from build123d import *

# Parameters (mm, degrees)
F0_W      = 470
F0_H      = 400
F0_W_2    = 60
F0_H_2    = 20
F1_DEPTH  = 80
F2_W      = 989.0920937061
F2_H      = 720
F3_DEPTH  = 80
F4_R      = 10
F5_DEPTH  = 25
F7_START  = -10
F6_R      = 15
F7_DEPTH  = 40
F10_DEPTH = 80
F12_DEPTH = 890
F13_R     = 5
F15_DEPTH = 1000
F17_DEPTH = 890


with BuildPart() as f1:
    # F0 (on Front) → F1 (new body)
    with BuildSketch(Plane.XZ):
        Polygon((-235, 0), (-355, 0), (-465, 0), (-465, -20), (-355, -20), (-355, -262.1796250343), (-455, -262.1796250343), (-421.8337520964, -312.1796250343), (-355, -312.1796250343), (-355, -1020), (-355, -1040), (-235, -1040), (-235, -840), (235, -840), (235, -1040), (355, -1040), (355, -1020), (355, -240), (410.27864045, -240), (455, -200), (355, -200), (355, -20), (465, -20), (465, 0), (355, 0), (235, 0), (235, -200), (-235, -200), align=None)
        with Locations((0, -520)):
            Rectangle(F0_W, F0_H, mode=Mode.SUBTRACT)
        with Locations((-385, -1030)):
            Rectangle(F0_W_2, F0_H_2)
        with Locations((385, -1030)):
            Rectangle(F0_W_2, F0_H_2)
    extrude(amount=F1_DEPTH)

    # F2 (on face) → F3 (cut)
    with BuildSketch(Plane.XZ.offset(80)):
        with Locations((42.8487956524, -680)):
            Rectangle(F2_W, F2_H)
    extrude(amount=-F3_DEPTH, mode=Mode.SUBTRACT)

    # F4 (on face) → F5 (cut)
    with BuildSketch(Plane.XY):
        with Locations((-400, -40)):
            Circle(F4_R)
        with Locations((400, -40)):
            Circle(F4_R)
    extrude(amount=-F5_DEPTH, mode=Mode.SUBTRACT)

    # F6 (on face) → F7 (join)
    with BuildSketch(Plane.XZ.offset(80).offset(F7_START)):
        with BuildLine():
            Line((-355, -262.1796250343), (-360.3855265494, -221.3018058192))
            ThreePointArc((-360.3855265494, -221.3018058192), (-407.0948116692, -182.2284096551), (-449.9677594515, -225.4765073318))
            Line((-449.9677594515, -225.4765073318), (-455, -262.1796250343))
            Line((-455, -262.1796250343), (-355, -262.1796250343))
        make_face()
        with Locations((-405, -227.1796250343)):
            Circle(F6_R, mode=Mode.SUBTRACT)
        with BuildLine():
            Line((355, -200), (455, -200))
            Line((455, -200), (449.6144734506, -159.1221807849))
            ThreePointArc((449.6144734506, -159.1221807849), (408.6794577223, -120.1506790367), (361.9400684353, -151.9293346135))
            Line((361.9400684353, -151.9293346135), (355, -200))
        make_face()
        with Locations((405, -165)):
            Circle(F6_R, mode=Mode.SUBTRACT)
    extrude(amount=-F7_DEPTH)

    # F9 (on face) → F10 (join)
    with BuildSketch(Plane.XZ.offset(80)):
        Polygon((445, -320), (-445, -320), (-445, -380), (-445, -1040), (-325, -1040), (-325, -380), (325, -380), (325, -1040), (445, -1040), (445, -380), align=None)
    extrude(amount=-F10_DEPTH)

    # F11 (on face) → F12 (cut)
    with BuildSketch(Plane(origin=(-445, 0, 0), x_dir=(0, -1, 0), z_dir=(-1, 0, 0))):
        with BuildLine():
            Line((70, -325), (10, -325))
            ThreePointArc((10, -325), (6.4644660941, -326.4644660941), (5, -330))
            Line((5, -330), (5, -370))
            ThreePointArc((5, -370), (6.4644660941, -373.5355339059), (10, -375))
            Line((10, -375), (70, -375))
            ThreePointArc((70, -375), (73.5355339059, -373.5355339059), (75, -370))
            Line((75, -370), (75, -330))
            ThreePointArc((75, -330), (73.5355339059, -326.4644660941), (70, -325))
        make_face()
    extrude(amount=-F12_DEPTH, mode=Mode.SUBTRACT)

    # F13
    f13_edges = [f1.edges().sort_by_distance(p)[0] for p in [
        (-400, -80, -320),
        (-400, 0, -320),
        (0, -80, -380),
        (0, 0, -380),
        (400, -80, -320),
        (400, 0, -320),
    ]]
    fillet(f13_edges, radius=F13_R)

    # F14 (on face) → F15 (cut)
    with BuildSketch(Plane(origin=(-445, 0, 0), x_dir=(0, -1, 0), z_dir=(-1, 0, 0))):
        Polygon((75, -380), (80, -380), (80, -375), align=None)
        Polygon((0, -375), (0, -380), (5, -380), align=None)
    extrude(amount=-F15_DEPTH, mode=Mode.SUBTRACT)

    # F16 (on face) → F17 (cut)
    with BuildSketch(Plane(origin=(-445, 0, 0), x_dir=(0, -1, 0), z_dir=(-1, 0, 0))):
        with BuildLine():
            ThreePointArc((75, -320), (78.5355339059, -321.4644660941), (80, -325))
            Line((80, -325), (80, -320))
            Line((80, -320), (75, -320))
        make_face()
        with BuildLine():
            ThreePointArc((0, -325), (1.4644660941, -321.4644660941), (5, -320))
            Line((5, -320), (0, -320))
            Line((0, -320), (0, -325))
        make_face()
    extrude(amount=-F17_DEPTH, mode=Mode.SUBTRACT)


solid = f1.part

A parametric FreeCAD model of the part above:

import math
import FreeCAD as App
import Part
import Sketcher
Q = App.Units.Quantity


def edges_at(feature, points):
    """Names of the edges that pass closest to the given points."""
    edges = feature.Shape.Edges
    near = lambda p: min(range(len(edges)), key=lambda i: edges[i].distToShape(Part.Vertex(*p))[0])
    return sorted({f"Edge{near(p) + 1}" for p in points})

doc = App.newDocument("Part")
body = doc.addObject("PartDesign::Body", "Body")

sketch1 = body.newObject("Sketcher::SketchObject", "Sketch")
sketch1.AttachmentSupport = (doc.getObject("XZ_Plane"), [""])
sketch1.MapMode = "FlatFace"
sketch1.addGeometry([
    Part.LineSegment(App.Vector(-235, 0, 0), App.Vector(-465, 0, 0)),
    Part.LineSegment(App.Vector(-465, 0, 0), App.Vector(-465, -20, 0)),
    Part.LineSegment(App.Vector(-465, -20, 0), App.Vector(-355, -20, 0)),
    Part.LineSegment(App.Vector(-355, -20, 0), App.Vector(-355, -262.179625, 0)),
    Part.LineSegment(App.Vector(-355, -262.179625, 0), App.Vector(-455, -262.179625, 0)),
    Part.LineSegment(App.Vector(-455, -262.179625, 0), App.Vector(-421.833752, -312.179625, 0)),
    Part.LineSegment(App.Vector(-421.833752, -312.179625, 0), App.Vector(-355, -312.179625, 0)),
    Part.LineSegment(App.Vector(-355, -312.179625, 0), App.Vector(-355, -1020, 0)),
    Part.LineSegment(App.Vector(-355, -1020, 0), App.Vector(-415, -1020, 0)),
    Part.LineSegment(App.Vector(-415, -1020, 0), App.Vector(-415, -1040, 0)),
    Part.LineSegment(App.Vector(-415, -1040, 0), App.Vector(-235, -1040, 0)),
    Part.LineSegment(App.Vector(-235, -1040, 0), App.Vector(-235, -840, 0)),
    Part.LineSegment(App.Vector(-235, -840, 0), App.Vector(235, -840, 0)),
    Part.LineSegment(App.Vector(235, -840, 0), App.Vector(235, -1040, 0)),
    Part.LineSegment(App.Vector(235, -1040, 0), App.Vector(415, -1040, 0)),
    Part.LineSegment(App.Vector(415, -1040, 0), App.Vector(415, -1020, 0)),
    Part.LineSegment(App.Vector(415, -1020, 0), App.Vector(355, -1020, 0)),
    Part.LineSegment(App.Vector(355, -1020, 0), App.Vector(355, -240, 0)),
    Part.LineSegment(App.Vector(355, -240, 0), App.Vector(410.27864, -240, 0)),
    Part.LineSegment(App.Vector(410.27864, -240, 0), App.Vector(455, -200, 0)),
    Part.LineSegment(App.Vector(455, -200, 0), App.Vector(355, -200, 0)),
    Part.LineSegment(App.Vector(355, -200, 0), App.Vector(355, -20, 0)),
    Part.LineSegment(App.Vector(355, -20, 0), App.Vector(465, -20, 0)),
    Part.LineSegment(App.Vector(465, -20, 0), App.Vector(465, 0, 0)),
    Part.LineSegment(App.Vector(465, 0, 0), App.Vector(235, 0, 0)),
    Part.LineSegment(App.Vector(235, 0, 0), App.Vector(235, -200, 0)),
    Part.LineSegment(App.Vector(235, -200, 0), App.Vector(-235, -200, 0)),
    Part.LineSegment(App.Vector(-235, -200, 0), App.Vector(-235, 0, 0)),
    Part.LineSegment(App.Vector(235, -720, 0), App.Vector(-235, -720, 0)),
    Part.LineSegment(App.Vector(-235, -720, 0), App.Vector(-235, -320, 0)),
    Part.LineSegment(App.Vector(-235, -320, 0), App.Vector(235, -320, 0)),
    Part.LineSegment(App.Vector(235, -320, 0), App.Vector(235, -720, 0)),
], False)
sketch1.addConstraint([
    Sketcher.Constraint("Coincident", 0, 2, 1, 1),
    Sketcher.Constraint("Coincident", 1, 2, 2, 1),
    Sketcher.Constraint("Coincident", 2, 2, 3, 1),
    Sketcher.Constraint("Coincident", 3, 2, 4, 1),
    Sketcher.Constraint("Coincident", 4, 2, 5, 1),
    Sketcher.Constraint("Coincident", 5, 2, 6, 1),
    Sketcher.Constraint("Coincident", 6, 2, 7, 1),
    Sketcher.Constraint("Coincident", 7, 2, 8, 1),
    Sketcher.Constraint("Coincident", 8, 2, 9, 1),
    Sketcher.Constraint("Coincident", 9, 2, 10, 1),
    Sketcher.Constraint("Coincident", 10, 2, 11, 1),
    Sketcher.Constraint("Coincident", 11, 2, 12, 1),
    Sketcher.Constraint("Coincident", 12, 2, 13, 1),
    Sketcher.Constraint("Coincident", 13, 2, 14, 1),
    Sketcher.Constraint("Coincident", 14, 2, 15, 1),
    Sketcher.Constraint("Coincident", 15, 2, 16, 1),
    Sketcher.Constraint("Coincident", 16, 2, 17, 1),
    Sketcher.Constraint("Coincident", 17, 2, 18, 1),
    Sketcher.Constraint("Coincident", 18, 2, 19, 1),
    Sketcher.Constraint("Coincident", 19, 2, 20, 1),
    Sketcher.Constraint("Coincident", 20, 2, 21, 1),
    Sketcher.Constraint("Coincident", 21, 2, 22, 1),
    Sketcher.Constraint("Coincident", 22, 2, 23, 1),
    Sketcher.Constraint("Coincident", 23, 2, 24, 1),
    Sketcher.Constraint("Coincident", 24, 2, 25, 1),
    Sketcher.Constraint("Coincident", 25, 2, 26, 1),
    Sketcher.Constraint("Coincident", 26, 2, 27, 1),
    Sketcher.Constraint("Coincident", 27, 2, 0, 1),
    Sketcher.Constraint("Coincident", 28, 2, 29, 1),
    Sketcher.Constraint("Coincident", 29, 2, 30, 1),
    Sketcher.Constraint("Coincident", 30, 2, 31, 1),
    Sketcher.Constraint("Coincident", 31, 2, 28, 1),
    Sketcher.Constraint("Horizontal", 0),
    Sketcher.Constraint("Vertical", 1),
    Sketcher.Constraint("Horizontal", 2),
    Sketcher.Constraint("Vertical", 3),
    Sketcher.Constraint("Horizontal", 4),
    Sketcher.Constraint("Horizontal", 6),
    Sketcher.Constraint("Vertical", 7),
    Sketcher.Constraint("Horizontal", 8),
    Sketcher.Constraint("Vertical", 9),
    Sketcher.Constraint("Horizontal", 10),
    Sketcher.Constraint("Vertical", 11),
    Sketcher.Constraint("Horizontal", 12),
    Sketcher.Constraint("Vertical", 13),
    Sketcher.Constraint("Horizontal", 14),
    Sketcher.Constraint("Vertical", 15),
    Sketcher.Constraint("Horizontal", 16),
    Sketcher.Constraint("Vertical", 17),
    Sketcher.Constraint("Horizontal", 18),
    Sketcher.Constraint("Horizontal", 20),
    Sketcher.Constraint("Vertical", 21),
    Sketcher.Constraint("Horizontal", 22),
    Sketcher.Constraint("Vertical", 23),
    Sketcher.Constraint("Horizontal", 24),
    Sketcher.Constraint("Vertical", 25),
    Sketcher.Constraint("Horizontal", 26),
    Sketcher.Constraint("Vertical", 27),
    Sketcher.Constraint("Horizontal", 28),
    Sketcher.Constraint("Vertical", 29),
    Sketcher.Constraint("Horizontal", 30),
    Sketcher.Constraint("Vertical", 31),
    Sketcher.Constraint("Symmetric", 0, 2, 23, 2, -1, 1),
    Sketcher.Constraint("Symmetric", 10, 2, 13, 2, -2),
    Sketcher.Constraint("Symmetric", 8, 2, 15, 2, -2),
    Sketcher.Constraint("Symmetric", 2, 2, 21, 2, -2),
    Sketcher.Constraint("Symmetric", 24, 2, 27, 2, -2),
    Sketcher.Constraint("Horizontal", 20, 2, 25, 2),
    Sketcher.Constraint("Vertical", 3, 2, 6, 2),
    Sketcher.Constraint("Vertical", 17, 2, 20, 2),
    Sketcher.Constraint("Vertical", 13, 2, 24, 2),
    Sketcher.Constraint("Vertical", 27, 2, 28, 2),
    Sketcher.Constraint("Vertical", 25, 2, 30, 2),
    Sketcher.Constraint("Equal", 4, 20),
    Sketcher.Constraint("Equal", 1, 9),
    Sketcher.Constraint("Equal", 14, 21),
    Sketcher.Constraint("Equal", 13, 25),
    Sketcher.Constraint("Equal", 5, 19),
    Sketcher.Constraint("DistanceX", 0, 2, 0, 1, Q("230 mm")),
    Sketcher.Constraint("DistanceX", 2, 1, 2, 2, Q("110 mm")),
    Sketcher.Constraint("DistanceX", 4, 2, 4, 1, Q("100 mm")),
    Sketcher.Constraint("DistanceX", 8, 2, 8, 1, Q("60 mm")),
    Sketcher.Constraint("DistanceX", 12, 1, 12, 2, Q("470 mm")),
    Sketcher.Constraint("DistanceY", 1, 2, 1, 1, Q("20 mm")),
    Sketcher.Constraint("DistanceY", 17, 1, 17, 2, Q("780 mm")),
    Sketcher.Constraint("DistanceY", 29, 1, 29, 2, Q("400 mm")),
    Sketcher.Constraint("Distance", 5, Q("60 mm")),
    Sketcher.Constraint("DistanceY", 7, 2, -1, 1, Q("1020 mm")),
    Sketcher.Constraint("DistanceY", 28, 2, -1, 1, Q("720 mm")),
    Sketcher.Constraint("DistanceY", 5, 2, 4, 2, Q("50 mm")),
    Sketcher.Constraint("DistanceY", 3, 2, 3, 1, Q("242.179625 mm")),
])
pad1 = body.newObject("PartDesign::Pad", "Pad")
pad1.Profile = sketch1
pad1.Length = 80

sketch2 = body.newObject("Sketcher::SketchObject", "Sketch001")
sketch2.AttachmentSupport = (doc.getObject("XZ_Plane"), [""])
sketch2.MapMode = "FlatFace"
sketch2.AttachmentOffset = App.Placement(App.Vector(0, 0, 80), App.Rotation())
sketch2.addGeometry([
    Part.LineSegment(App.Vector(-451.697251, -320, 0), App.Vector(-451.697251, -1040, 0)),
    Part.LineSegment(App.Vector(-451.697251, -1040, 0), App.Vector(537.394843, -1040, 0)),
    Part.LineSegment(App.Vector(537.394843, -1040, 0), App.Vector(537.394843, -320, 0)),
    Part.LineSegment(App.Vector(537.394843, -320, 0), App.Vector(-451.697251, -320, 0)),
], False)
sketch2.addConstraint([
    Sketcher.Constraint("Coincident", 0, 2, 1, 1),
    Sketcher.Constraint("Coincident", 1, 2, 2, 1),
    Sketcher.Constraint("Coincident", 2, 2, 3, 1),
    Sketcher.Constraint("Coincident", 3, 2, 0, 1),
    Sketcher.Constraint("Vertical", 0),
    Sketcher.Constraint("Horizontal", 1),
    Sketcher.Constraint("Vertical", 2),
    Sketcher.Constraint("Horizontal", 3),
    Sketcher.Constraint("DistanceY", 0, 2, 0, 1, Q("720 mm")),
    Sketcher.Constraint("DistanceY", 0, 2, -1, 1, Q("1040 mm")),
    Sketcher.Constraint("DistanceX", 1, 1, 1, 2, Q("989.092094 mm")),
    Sketcher.Constraint("DistanceX", 0, 2, -1, 1, Q("451.697251 mm")),
])
pocket1 = body.newObject("PartDesign::Pocket", "Pocket")
pocket1.Profile = sketch2
pocket1.Length = 80

sketch3 = body.newObject("Sketcher::SketchObject", "Sketch002")
sketch3.AttachmentSupport = (doc.getObject("XY_Plane"), [""])
sketch3.MapMode = "FlatFace"
sketch3.addGeometry([
    Part.Circle(App.Vector(-400, -40, 0), App.Vector(0, 0, 1), 10),
    Part.Circle(App.Vector(400, -40, 0), App.Vector(0, 0, 1), 10),
], False)
sketch3.addConstraint([
    Sketcher.Constraint("Equal", 0, 1),
    Sketcher.Constraint("Symmetric", 0, 3, 1, 3, -2),
    Sketcher.Constraint("Diameter", 0, Q("20 mm")),
    Sketcher.Constraint("DistanceX", 0, 3, -1, 1, Q("400 mm")),
    Sketcher.Constraint("DistanceY", 0, 3, -1, 1, Q("40 mm")),
])
pocket2 = body.newObject("PartDesign::Pocket", "Pocket001")
pocket2.Profile = sketch3
pocket2.Length = 25

sketch4 = body.newObject("Sketcher::SketchObject", "Sketch003")
sketch4.AttachmentSupport = (doc.getObject("XZ_Plane"), [""])
sketch4.MapMode = "FlatFace"
sketch4.AttachmentOffset = App.Placement(App.Vector(0, 0, 70), App.Rotation())
sketch4.addGeometry([
    Part.LineSegment(App.Vector(-355, -262.179625, 0), App.Vector(-360.385527, -221.301806, 0)),
    Part.ArcOfCircle(Part.Circle(App.Vector(-405, -227.179625, 0), App.Vector(0, 0, 1), 45), math.radians(7.505317), math.radians(177.831005)),
    Part.LineSegment(App.Vector(-449.967759, -225.476507, 0), App.Vector(-455, -262.179625, 0)),
    Part.LineSegment(App.Vector(-455, -262.179625, 0), App.Vector(-355, -262.179625, 0)),
    Part.Circle(App.Vector(-405, -227.179625, 0), App.Vector(0, 0, 1), 15),
    Part.LineSegment(App.Vector(355, -200, 0), App.Vector(455, -200, 0)),
    Part.LineSegment(App.Vector(455, -200, 0), App.Vector(449.614473, -159.122181, 0)),
    Part.ArcOfCircle(Part.Circle(App.Vector(405, -165, 0), App.Vector(0, 0, 1), 45), math.radians(7.505317), math.radians(163.114549)),
    Part.LineSegment(App.Vector(361.940068, -151.929335, 0), App.Vector(355, -200, 0)),
    Part.Circle(App.Vector(405, -165, 0), App.Vector(0, 0, 1), 15),
], False)
sketch4.addConstraint([
    Sketcher.Constraint("Tangent", 0, 2, 1, 1),
    Sketcher.Constraint("Coincident", 1, 2, 2, 1),
    Sketcher.Constraint("Coincident", 2, 2, 3, 1),
    Sketcher.Constraint("Coincident", 3, 2, 0, 1),
    Sketcher.Constraint("Coincident", 5, 2, 6, 1),
    Sketcher.Constraint("Tangent", 6, 2, 7, 1),
    Sketcher.Constraint("Coincident", 7, 2, 8, 1),
    Sketcher.Constraint("Coincident", 8, 2, 5, 1),
    Sketcher.Constraint("Horizontal", 3),
    Sketcher.Constraint("Horizontal", 5),
    Sketcher.Constraint("Coincident", 4, 3, 1, 3),
    Sketcher.Constraint("Coincident", 9, 3, 7, 3),
    Sketcher.Constraint("Equal", 1, 7),
    Sketcher.Constraint("Equal", 4, 9),
    Sketcher.Constraint("Parallel", 0, 6),
    Sketcher.Constraint("Equal", 3, 5),
    Sketcher.Constraint("Equal", 0, 6),
    Sketcher.Constraint("Diameter", 4, Q("30 mm")),
    Sketcher.Constraint("Radius", 1, Q("45 mm")),
    Sketcher.Constraint("DistanceX", 3, 1, 3, 2, Q("100 mm")),
    Sketcher.Constraint("DistanceX", 1, 3, -1, 1, Q("405 mm")),
    Sketcher.Constraint("DistanceX", -1, 1, 7, 3, Q("405 mm")),
    Sketcher.Constraint("DistanceY", 7, 3, -1, 1, Q("165 mm")),
    Sketcher.Constraint("DistanceX", 2, 2, -1, 1, Q("455 mm")),
    Sketcher.Constraint("DistanceY", 5, 2, -1, 1, Q("200 mm")),
    Sketcher.Constraint("DistanceY", 1, 2, 0, 2, Q("4.174702 mm")),
    Sketcher.Constraint("Distance", 8, Q("48.569058 mm")),
    Sketcher.Constraint("DistanceY", 3, 2, 7, 2, Q("110.25029 mm")),
])
pad2 = body.newObject("PartDesign::Pad", "Pad001")
pad2.Profile = sketch4
pad2.Length = 40
pad2.Reversed = True

sketch5 = body.newObject("Sketcher::SketchObject", "Sketch004")
sketch5.AttachmentSupport = (doc.getObject("XZ_Plane"), [""])
sketch5.MapMode = "FlatFace"
sketch5.AttachmentOffset = App.Placement(App.Vector(0, 0, 80), App.Rotation())
sketch5.addGeometry([
    Part.LineSegment(App.Vector(445, -320, 0), App.Vector(-445, -320, 0)),
    Part.LineSegment(App.Vector(-445, -320, 0), App.Vector(-445, -1040, 0)),
    Part.LineSegment(App.Vector(-445, -1040, 0), App.Vector(-325, -1040, 0)),
    Part.LineSegment(App.Vector(-325, -1040, 0), App.Vector(-325, -380, 0)),
    Part.LineSegment(App.Vector(-325, -380, 0), App.Vector(325, -380, 0)),
    Part.LineSegment(App.Vector(325, -380, 0), App.Vector(325, -1040, 0)),
    Part.LineSegment(App.Vector(325, -1040, 0), App.Vector(445, -1040, 0)),
    Part.LineSegment(App.Vector(445, -1040, 0), App.Vector(445, -320, 0)),
], False)
sketch5.addConstraint([
    Sketcher.Constraint("Coincident", 0, 2, 1, 1),
    Sketcher.Constraint("Coincident", 1, 2, 2, 1),
    Sketcher.Constraint("Coincident", 2, 2, 3, 1),
    Sketcher.Constraint("Coincident", 3, 2, 4, 1),
    Sketcher.Constraint("Coincident", 4, 2, 5, 1),
    Sketcher.Constraint("Coincident", 5, 2, 6, 1),
    Sketcher.Constraint("Coincident", 6, 2, 7, 1),
    Sketcher.Constraint("Coincident", 7, 2, 0, 1),
    Sketcher.Constraint("Horizontal", 0),
    Sketcher.Constraint("Vertical", 1),
    Sketcher.Constraint("Horizontal", 2),
    Sketcher.Constraint("Vertical", 3),
    Sketcher.Constraint("Horizontal", 4),
    Sketcher.Constraint("Vertical", 5),
    Sketcher.Constraint("Horizontal", 6),
    Sketcher.Constraint("Vertical", 7),
    Sketcher.Constraint("Symmetric", 2, 2, 5, 2, -2),
    Sketcher.Constraint("Equal", 2, 6),
    Sketcher.Constraint("DistanceX", 0, 2, 0, 1, Q("890 mm")),
    Sketcher.Constraint("DistanceX", 2, 1, 2, 2, Q("120 mm")),
    Sketcher.Constraint("DistanceY", 1, 2, 1, 1, Q("720 mm")),
    Sketcher.Constraint("DistanceY", 3, 1, 3, 2, Q("660 mm")),
    Sketcher.Constraint("DistanceY", 0, 2, -1, 1, Q("320 mm")),
])
pad3 = body.newObject("PartDesign::Pad", "Pad002")
pad3.Profile = sketch5
pad3.Length = 80
pad3.Reversed = True

sketch6 = body.newObject("Sketcher::SketchObject", "Sketch005")
sketch6.AttachmentSupport = (doc.getObject("YZ_Plane"), [""])
sketch6.MapMode = "FlatFace"
sketch6.AttachmentOffset = App.Placement(App.Vector(0, 0, -445), App.Rotation())
sketch6.addGeometry([
    Part.LineSegment(App.Vector(-70, -325, 0), App.Vector(-10, -325, 0)),
    Part.ArcOfCircle(Part.Circle(App.Vector(-10, -330, 0), App.Vector(0, 0, 1), 5), math.radians(0), math.radians(90)),
    Part.LineSegment(App.Vector(-5, -330, 0), App.Vector(-5, -370, 0)),
    Part.ArcOfCircle(Part.Circle(App.Vector(-10, -370, 0), App.Vector(0, 0, 1), 5), math.radians(-90), math.radians(0)),
    Part.LineSegment(App.Vector(-10, -375, 0), App.Vector(-70, -375, 0)),
    Part.ArcOfCircle(Part.Circle(App.Vector(-70, -370, 0), App.Vector(0, 0, 1), 5), math.radians(180), math.radians(270)),
    Part.LineSegment(App.Vector(-75, -370, 0), App.Vector(-75, -330, 0)),
    Part.ArcOfCircle(Part.Circle(App.Vector(-70, -330, 0), App.Vector(0, 0, 1), 5), math.radians(90), math.radians(180)),
], False)
sketch6.addConstraint([
    Sketcher.Constraint("Tangent", 0, 2, 1, 2),
    Sketcher.Constraint("Tangent", 1, 1, 2, 1),
    Sketcher.Constraint("Tangent", 2, 2, 3, 2),
    Sketcher.Constraint("Tangent", 3, 1, 4, 1),
    Sketcher.Constraint("Tangent", 4, 2, 5, 2),
    Sketcher.Constraint("Tangent", 5, 1, 6, 1),
    Sketcher.Constraint("Tangent", 6, 2, 7, 2),
    Sketcher.Constraint("Tangent", 7, 1, 0, 1),
    Sketcher.Constraint("Horizontal", 0),
    Sketcher.Constraint("Vertical", 2),
    Sketcher.Constraint("Horizontal", 4),
    Sketcher.Constraint("Vertical", 6),
    Sketcher.Constraint("Equal", 1, 3),
    Sketcher.Constraint("Equal", 3, 5),
    Sketcher.Constraint("Equal", 5, 7),
    Sketcher.Constraint("Radius", 1, Q("5 mm")),
    Sketcher.Constraint("DistanceX", 0, 1, 0, 2, Q("60 mm")),
    Sketcher.Constraint("DistanceY", 2, 2, 2, 1, Q("40 mm")),
    Sketcher.Constraint("DistanceX", 1, 3, -1, 1, Q("10 mm")),
    Sketcher.Constraint("DistanceY", 1, 3, -1, 1, Q("330 mm")),
])
pocket3 = body.newObject("PartDesign::Pocket", "Pocket002")
pocket3.Profile = sketch6
pocket3.Length = 890
pocket3.Reversed = True
doc.recompute()

fillet = body.newObject("PartDesign::Fillet", "Fillet")
fillet.Base = (pocket3, edges_at(pocket3, [
    (-400, -80, -320),
    (-400, 0, -320),
    (0, -80, -380),
    (0, 0, -380),
    (400, -80, -320),
    (400, 0, -320),
]))
fillet.Radius = 5

sketch7 = body.newObject("Sketcher::SketchObject", "Sketch006")
sketch7.AttachmentSupport = (doc.getObject("YZ_Plane"), [""])
sketch7.MapMode = "FlatFace"
sketch7.AttachmentOffset = App.Placement(App.Vector(0, 0, -445), App.Rotation())
sketch7.addGeometry([
    Part.LineSegment(App.Vector(-75, -380, 0), App.Vector(-80, -380, 0)),
    Part.LineSegment(App.Vector(-80, -380, 0), App.Vector(-80, -375, 0)),
    Part.LineSegment(App.Vector(-80, -375, 0), App.Vector(-75, -380, 0)),
    Part.LineSegment(App.Vector(0, -375, 0), App.Vector(0, -380, 0)),
    Part.LineSegment(App.Vector(0, -380, 0), App.Vector(-5, -380, 0)),
    Part.LineSegment(App.Vector(-5, -380, 0), App.Vector(0, -375, 0)),
], False)
sketch7.addConstraint([
    Sketcher.Constraint("Coincident", 0, 2, 1, 1),
    Sketcher.Constraint("Coincident", 1, 2, 2, 1),
    Sketcher.Constraint("Coincident", 2, 2, 0, 1),
    Sketcher.Constraint("Coincident", 3, 2, 4, 1),
    Sketcher.Constraint("Coincident", 4, 2, 5, 1),
    Sketcher.Constraint("Coincident", 5, 2, 3, 1),
    Sketcher.Constraint("Horizontal", 0),
    Sketcher.Constraint("Vertical", 1),
    Sketcher.Constraint("Vertical", 3),
    Sketcher.Constraint("Horizontal", 4),
    Sketcher.Constraint("PointOnObject", 3, 2, -2),
    Sketcher.Constraint("Perpendicular", 2, 5),
    Sketcher.Constraint("Horizontal", 2, 2, 3, 2),
    Sketcher.Constraint("Horizontal", 1, 2, 5, 2),
    Sketcher.Constraint("Equal", 0, 4),
    Sketcher.Constraint("DistanceX", 0, 2, 0, 1, Q("5 mm")),
    Sketcher.Constraint("DistanceX", 0, 2, -1, 1, Q("80 mm")),
    Sketcher.Constraint("DistanceY", 0, 2, -1, 1, Q("380 mm")),
])
pocket4 = body.newObject("PartDesign::Pocket", "Pocket003")
pocket4.Profile = sketch7
pocket4.Length = 1000
pocket4.Reversed = True

sketch8 = body.newObject("Sketcher::SketchObject", "Sketch007")
sketch8.AttachmentSupport = (doc.getObject("YZ_Plane"), [""])
sketch8.MapMode = "FlatFace"
sketch8.AttachmentOffset = App.Placement(App.Vector(0, 0, -445), App.Rotation())
sketch8.addGeometry([
    Part.ArcOfCircle(Part.Circle(App.Vector(-75, -325, 0), App.Vector(0, 0, 1), 5), math.radians(90), math.radians(180)),
    Part.LineSegment(App.Vector(-80, -325, 0), App.Vector(-80, -320, 0)),
    Part.LineSegment(App.Vector(-80, -320, 0), App.Vector(-75, -320, 0)),
    Part.ArcOfCircle(Part.Circle(App.Vector(-5, -325, 0), App.Vector(0, 0, 1), 5), math.radians(0), math.radians(90)),
    Part.LineSegment(App.Vector(-5, -320, 0), App.Vector(0, -320, 0)),
    Part.LineSegment(App.Vector(0, -320, 0), App.Vector(0, -325, 0)),
], False)
sketch8.addConstraint([
    Sketcher.Constraint("Tangent", 0, 2, 1, 1),
    Sketcher.Constraint("Coincident", 1, 2, 2, 1),
    Sketcher.Constraint("Tangent", 2, 2, 0, 1),
    Sketcher.Constraint("Tangent", 3, 2, 4, 1),
    Sketcher.Constraint("Coincident", 4, 2, 5, 1),
    Sketcher.Constraint("Tangent", 5, 2, 3, 1),
    Sketcher.Constraint("Vertical", 1),
    Sketcher.Constraint("Horizontal", 2),
    Sketcher.Constraint("Horizontal", 4),
    Sketcher.Constraint("Vertical", 5),
    Sketcher.Constraint("Equal", 0, 3),
    Sketcher.Constraint("PointOnObject", 4, 2, -2),
    Sketcher.Constraint("Horizontal", 0, 3, 3, 3),
    Sketcher.Constraint("Radius", 0, Q("5 mm")),
    Sketcher.Constraint("DistanceX", 0, 3, -1, 1, Q("75 mm")),
    Sketcher.Constraint("DistanceY", 0, 3, -1, 1, Q("325 mm")),
])
pocket5 = body.newObject("PartDesign::Pocket", "Pocket004")
pocket5.Profile = sketch8
pocket5.Length = 890
pocket5.Reversed = True

doc.recompute()
